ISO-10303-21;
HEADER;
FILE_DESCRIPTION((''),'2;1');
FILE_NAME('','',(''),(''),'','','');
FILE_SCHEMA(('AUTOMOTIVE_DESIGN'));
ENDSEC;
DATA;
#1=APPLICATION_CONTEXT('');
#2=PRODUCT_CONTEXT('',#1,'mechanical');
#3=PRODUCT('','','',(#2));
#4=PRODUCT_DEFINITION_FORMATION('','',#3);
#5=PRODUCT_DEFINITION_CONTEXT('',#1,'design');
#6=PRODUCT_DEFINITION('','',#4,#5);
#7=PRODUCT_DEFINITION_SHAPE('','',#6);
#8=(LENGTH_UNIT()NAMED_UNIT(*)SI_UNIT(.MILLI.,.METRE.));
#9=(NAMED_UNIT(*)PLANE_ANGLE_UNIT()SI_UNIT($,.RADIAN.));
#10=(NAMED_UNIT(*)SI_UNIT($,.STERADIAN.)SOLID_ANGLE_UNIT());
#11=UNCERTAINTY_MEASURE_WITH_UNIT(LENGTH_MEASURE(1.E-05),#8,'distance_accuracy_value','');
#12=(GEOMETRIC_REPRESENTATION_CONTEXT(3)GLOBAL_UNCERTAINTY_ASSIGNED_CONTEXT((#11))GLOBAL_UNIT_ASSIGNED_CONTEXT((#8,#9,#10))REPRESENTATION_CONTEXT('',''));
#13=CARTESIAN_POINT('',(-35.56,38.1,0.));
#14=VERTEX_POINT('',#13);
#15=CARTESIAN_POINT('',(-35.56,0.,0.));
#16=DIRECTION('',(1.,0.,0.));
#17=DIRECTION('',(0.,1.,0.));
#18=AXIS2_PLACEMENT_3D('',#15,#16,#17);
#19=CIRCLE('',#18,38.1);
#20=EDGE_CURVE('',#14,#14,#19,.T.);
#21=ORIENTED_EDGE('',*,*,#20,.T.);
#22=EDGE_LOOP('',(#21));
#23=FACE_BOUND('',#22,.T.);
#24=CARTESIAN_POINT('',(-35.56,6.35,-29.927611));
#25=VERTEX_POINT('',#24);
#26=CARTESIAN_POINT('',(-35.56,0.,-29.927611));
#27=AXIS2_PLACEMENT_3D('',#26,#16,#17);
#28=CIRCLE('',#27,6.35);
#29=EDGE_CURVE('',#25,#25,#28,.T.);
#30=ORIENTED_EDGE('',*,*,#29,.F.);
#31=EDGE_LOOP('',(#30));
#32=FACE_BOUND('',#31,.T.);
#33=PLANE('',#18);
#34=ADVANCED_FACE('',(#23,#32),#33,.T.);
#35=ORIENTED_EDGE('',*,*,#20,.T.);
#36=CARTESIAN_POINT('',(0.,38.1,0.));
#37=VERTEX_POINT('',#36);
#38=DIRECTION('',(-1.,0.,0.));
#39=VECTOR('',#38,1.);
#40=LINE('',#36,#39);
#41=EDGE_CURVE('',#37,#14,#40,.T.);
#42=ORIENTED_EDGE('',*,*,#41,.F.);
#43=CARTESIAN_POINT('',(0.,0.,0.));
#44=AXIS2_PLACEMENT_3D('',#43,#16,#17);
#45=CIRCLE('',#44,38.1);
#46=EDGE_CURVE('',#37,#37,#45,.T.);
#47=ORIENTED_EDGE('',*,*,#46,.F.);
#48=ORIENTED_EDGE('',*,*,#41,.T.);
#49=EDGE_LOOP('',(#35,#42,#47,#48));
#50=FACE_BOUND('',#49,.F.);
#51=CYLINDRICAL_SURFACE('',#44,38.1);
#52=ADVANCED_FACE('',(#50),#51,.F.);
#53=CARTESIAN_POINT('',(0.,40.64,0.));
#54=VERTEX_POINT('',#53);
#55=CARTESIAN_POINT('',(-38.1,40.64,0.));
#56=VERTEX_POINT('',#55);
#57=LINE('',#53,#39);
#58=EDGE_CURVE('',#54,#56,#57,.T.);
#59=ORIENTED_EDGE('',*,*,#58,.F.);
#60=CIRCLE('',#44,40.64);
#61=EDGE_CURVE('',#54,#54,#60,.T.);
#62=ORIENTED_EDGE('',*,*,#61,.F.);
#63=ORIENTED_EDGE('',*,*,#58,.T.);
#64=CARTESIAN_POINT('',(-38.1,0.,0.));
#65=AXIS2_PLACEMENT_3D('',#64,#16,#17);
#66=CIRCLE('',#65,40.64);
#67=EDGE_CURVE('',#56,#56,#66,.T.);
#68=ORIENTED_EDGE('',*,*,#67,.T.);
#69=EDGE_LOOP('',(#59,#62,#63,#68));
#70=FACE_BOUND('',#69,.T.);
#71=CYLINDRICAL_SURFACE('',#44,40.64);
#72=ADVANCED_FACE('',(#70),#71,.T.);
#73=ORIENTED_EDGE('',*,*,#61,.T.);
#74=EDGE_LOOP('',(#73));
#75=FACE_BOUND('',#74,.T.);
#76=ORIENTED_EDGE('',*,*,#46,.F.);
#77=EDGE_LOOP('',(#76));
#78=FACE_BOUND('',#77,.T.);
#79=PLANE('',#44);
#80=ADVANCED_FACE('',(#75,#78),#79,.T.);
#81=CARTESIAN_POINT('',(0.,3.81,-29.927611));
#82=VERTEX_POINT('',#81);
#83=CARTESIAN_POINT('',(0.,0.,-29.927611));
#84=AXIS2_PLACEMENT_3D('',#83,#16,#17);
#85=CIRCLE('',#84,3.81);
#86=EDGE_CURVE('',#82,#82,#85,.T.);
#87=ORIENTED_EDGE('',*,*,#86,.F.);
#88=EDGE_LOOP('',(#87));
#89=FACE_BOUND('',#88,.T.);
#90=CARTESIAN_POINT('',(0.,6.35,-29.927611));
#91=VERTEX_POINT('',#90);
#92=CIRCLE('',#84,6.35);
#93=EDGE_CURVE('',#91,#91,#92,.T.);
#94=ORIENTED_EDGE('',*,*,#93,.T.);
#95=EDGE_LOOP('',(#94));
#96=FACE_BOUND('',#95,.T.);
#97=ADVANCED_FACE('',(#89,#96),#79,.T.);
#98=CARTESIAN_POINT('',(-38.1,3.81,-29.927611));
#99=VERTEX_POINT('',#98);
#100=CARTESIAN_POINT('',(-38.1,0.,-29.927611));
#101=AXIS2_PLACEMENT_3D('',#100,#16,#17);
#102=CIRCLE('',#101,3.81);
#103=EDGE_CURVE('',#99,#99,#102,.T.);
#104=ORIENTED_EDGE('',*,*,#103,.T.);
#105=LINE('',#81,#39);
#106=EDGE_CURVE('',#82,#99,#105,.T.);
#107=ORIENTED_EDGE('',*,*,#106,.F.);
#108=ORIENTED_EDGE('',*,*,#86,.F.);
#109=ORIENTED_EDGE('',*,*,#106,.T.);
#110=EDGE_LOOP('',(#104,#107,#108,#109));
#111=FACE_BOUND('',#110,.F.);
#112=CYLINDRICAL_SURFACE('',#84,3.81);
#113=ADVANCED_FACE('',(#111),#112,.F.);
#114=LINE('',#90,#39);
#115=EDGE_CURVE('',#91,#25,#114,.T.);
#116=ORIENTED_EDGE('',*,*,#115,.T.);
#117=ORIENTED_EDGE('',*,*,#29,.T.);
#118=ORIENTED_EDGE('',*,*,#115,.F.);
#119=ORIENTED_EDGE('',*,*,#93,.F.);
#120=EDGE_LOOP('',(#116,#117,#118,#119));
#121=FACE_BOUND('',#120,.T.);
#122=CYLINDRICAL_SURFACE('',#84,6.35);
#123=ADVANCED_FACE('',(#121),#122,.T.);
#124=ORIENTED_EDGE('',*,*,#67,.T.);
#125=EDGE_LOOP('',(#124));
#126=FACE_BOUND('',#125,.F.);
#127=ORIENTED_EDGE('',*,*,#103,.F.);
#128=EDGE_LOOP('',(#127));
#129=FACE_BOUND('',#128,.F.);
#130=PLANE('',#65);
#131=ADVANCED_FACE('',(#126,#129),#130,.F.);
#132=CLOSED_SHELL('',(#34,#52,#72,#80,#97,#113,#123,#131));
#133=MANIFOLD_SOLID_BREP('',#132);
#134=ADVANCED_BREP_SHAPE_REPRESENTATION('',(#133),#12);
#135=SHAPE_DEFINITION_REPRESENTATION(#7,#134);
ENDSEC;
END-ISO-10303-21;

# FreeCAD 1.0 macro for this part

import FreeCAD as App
import Part
import Sketcher
from FreeCAD import Vector
Q = App.Units.Quantity


def faces_at(feature, points):
    """Names of the faces that lie closest to the given points."""
    faces = feature.Shape.Faces
    near = lambda p: min(range(len(faces)), key=lambda i: faces[i].distToShape(Part.Vertex(*p))[0])
    return sorted({f"Face{near(p) + 1}" for p in points})

doc = App.newDocument("Part")
body = doc.addObject("PartDesign::Body", "Body")

# Sketch on YZ plane
sketch1 = body.newObject("Sketcher::SketchObject", "Sketch")
sketch1.AttachmentSupport = (doc.getObject("YZ_Plane"), [""])
sketch1.MapMode = "FlatFace"
sketch1.addGeometry([
    Part.Circle(Vector(0, 0, 0), Vector(0, 0, 1), 40.64),
    Part.Circle(Vector(0, -29.927611, 0), Vector(0, 0, 1), 3.81),
], False)
sketch1.addConstraint([
    Sketcher.Constraint("Coincident", 0, 3, -1, 1),
    Sketcher.Constraint("PointOnObject", 1, 3, -2),
    Sketcher.Constraint("Diameter", 0, Q("3.2 in")),
    Sketcher.Constraint("Diameter", 1, Q("0.3 in")),
    Sketcher.Constraint("DistanceY", 1, 3, -1, 1, Q("29.927611 mm")),
])
pad1 = body.newObject("PartDesign::Pad", "Pad")
pad1.Profile = sketch1
pad1.Length = Q("1.5 in")
pad1.Reversed = True
doc.recompute()

thickness = body.newObject("PartDesign::Thickness", "Thickness")
thickness.Base = (pad1, faces_at(pad1, [(0, 0, 0)]))
thickness.Value = Q("0.1 in")
thickness.Reversed = True
thickness.Join = "Arc"

doc.recompute()
